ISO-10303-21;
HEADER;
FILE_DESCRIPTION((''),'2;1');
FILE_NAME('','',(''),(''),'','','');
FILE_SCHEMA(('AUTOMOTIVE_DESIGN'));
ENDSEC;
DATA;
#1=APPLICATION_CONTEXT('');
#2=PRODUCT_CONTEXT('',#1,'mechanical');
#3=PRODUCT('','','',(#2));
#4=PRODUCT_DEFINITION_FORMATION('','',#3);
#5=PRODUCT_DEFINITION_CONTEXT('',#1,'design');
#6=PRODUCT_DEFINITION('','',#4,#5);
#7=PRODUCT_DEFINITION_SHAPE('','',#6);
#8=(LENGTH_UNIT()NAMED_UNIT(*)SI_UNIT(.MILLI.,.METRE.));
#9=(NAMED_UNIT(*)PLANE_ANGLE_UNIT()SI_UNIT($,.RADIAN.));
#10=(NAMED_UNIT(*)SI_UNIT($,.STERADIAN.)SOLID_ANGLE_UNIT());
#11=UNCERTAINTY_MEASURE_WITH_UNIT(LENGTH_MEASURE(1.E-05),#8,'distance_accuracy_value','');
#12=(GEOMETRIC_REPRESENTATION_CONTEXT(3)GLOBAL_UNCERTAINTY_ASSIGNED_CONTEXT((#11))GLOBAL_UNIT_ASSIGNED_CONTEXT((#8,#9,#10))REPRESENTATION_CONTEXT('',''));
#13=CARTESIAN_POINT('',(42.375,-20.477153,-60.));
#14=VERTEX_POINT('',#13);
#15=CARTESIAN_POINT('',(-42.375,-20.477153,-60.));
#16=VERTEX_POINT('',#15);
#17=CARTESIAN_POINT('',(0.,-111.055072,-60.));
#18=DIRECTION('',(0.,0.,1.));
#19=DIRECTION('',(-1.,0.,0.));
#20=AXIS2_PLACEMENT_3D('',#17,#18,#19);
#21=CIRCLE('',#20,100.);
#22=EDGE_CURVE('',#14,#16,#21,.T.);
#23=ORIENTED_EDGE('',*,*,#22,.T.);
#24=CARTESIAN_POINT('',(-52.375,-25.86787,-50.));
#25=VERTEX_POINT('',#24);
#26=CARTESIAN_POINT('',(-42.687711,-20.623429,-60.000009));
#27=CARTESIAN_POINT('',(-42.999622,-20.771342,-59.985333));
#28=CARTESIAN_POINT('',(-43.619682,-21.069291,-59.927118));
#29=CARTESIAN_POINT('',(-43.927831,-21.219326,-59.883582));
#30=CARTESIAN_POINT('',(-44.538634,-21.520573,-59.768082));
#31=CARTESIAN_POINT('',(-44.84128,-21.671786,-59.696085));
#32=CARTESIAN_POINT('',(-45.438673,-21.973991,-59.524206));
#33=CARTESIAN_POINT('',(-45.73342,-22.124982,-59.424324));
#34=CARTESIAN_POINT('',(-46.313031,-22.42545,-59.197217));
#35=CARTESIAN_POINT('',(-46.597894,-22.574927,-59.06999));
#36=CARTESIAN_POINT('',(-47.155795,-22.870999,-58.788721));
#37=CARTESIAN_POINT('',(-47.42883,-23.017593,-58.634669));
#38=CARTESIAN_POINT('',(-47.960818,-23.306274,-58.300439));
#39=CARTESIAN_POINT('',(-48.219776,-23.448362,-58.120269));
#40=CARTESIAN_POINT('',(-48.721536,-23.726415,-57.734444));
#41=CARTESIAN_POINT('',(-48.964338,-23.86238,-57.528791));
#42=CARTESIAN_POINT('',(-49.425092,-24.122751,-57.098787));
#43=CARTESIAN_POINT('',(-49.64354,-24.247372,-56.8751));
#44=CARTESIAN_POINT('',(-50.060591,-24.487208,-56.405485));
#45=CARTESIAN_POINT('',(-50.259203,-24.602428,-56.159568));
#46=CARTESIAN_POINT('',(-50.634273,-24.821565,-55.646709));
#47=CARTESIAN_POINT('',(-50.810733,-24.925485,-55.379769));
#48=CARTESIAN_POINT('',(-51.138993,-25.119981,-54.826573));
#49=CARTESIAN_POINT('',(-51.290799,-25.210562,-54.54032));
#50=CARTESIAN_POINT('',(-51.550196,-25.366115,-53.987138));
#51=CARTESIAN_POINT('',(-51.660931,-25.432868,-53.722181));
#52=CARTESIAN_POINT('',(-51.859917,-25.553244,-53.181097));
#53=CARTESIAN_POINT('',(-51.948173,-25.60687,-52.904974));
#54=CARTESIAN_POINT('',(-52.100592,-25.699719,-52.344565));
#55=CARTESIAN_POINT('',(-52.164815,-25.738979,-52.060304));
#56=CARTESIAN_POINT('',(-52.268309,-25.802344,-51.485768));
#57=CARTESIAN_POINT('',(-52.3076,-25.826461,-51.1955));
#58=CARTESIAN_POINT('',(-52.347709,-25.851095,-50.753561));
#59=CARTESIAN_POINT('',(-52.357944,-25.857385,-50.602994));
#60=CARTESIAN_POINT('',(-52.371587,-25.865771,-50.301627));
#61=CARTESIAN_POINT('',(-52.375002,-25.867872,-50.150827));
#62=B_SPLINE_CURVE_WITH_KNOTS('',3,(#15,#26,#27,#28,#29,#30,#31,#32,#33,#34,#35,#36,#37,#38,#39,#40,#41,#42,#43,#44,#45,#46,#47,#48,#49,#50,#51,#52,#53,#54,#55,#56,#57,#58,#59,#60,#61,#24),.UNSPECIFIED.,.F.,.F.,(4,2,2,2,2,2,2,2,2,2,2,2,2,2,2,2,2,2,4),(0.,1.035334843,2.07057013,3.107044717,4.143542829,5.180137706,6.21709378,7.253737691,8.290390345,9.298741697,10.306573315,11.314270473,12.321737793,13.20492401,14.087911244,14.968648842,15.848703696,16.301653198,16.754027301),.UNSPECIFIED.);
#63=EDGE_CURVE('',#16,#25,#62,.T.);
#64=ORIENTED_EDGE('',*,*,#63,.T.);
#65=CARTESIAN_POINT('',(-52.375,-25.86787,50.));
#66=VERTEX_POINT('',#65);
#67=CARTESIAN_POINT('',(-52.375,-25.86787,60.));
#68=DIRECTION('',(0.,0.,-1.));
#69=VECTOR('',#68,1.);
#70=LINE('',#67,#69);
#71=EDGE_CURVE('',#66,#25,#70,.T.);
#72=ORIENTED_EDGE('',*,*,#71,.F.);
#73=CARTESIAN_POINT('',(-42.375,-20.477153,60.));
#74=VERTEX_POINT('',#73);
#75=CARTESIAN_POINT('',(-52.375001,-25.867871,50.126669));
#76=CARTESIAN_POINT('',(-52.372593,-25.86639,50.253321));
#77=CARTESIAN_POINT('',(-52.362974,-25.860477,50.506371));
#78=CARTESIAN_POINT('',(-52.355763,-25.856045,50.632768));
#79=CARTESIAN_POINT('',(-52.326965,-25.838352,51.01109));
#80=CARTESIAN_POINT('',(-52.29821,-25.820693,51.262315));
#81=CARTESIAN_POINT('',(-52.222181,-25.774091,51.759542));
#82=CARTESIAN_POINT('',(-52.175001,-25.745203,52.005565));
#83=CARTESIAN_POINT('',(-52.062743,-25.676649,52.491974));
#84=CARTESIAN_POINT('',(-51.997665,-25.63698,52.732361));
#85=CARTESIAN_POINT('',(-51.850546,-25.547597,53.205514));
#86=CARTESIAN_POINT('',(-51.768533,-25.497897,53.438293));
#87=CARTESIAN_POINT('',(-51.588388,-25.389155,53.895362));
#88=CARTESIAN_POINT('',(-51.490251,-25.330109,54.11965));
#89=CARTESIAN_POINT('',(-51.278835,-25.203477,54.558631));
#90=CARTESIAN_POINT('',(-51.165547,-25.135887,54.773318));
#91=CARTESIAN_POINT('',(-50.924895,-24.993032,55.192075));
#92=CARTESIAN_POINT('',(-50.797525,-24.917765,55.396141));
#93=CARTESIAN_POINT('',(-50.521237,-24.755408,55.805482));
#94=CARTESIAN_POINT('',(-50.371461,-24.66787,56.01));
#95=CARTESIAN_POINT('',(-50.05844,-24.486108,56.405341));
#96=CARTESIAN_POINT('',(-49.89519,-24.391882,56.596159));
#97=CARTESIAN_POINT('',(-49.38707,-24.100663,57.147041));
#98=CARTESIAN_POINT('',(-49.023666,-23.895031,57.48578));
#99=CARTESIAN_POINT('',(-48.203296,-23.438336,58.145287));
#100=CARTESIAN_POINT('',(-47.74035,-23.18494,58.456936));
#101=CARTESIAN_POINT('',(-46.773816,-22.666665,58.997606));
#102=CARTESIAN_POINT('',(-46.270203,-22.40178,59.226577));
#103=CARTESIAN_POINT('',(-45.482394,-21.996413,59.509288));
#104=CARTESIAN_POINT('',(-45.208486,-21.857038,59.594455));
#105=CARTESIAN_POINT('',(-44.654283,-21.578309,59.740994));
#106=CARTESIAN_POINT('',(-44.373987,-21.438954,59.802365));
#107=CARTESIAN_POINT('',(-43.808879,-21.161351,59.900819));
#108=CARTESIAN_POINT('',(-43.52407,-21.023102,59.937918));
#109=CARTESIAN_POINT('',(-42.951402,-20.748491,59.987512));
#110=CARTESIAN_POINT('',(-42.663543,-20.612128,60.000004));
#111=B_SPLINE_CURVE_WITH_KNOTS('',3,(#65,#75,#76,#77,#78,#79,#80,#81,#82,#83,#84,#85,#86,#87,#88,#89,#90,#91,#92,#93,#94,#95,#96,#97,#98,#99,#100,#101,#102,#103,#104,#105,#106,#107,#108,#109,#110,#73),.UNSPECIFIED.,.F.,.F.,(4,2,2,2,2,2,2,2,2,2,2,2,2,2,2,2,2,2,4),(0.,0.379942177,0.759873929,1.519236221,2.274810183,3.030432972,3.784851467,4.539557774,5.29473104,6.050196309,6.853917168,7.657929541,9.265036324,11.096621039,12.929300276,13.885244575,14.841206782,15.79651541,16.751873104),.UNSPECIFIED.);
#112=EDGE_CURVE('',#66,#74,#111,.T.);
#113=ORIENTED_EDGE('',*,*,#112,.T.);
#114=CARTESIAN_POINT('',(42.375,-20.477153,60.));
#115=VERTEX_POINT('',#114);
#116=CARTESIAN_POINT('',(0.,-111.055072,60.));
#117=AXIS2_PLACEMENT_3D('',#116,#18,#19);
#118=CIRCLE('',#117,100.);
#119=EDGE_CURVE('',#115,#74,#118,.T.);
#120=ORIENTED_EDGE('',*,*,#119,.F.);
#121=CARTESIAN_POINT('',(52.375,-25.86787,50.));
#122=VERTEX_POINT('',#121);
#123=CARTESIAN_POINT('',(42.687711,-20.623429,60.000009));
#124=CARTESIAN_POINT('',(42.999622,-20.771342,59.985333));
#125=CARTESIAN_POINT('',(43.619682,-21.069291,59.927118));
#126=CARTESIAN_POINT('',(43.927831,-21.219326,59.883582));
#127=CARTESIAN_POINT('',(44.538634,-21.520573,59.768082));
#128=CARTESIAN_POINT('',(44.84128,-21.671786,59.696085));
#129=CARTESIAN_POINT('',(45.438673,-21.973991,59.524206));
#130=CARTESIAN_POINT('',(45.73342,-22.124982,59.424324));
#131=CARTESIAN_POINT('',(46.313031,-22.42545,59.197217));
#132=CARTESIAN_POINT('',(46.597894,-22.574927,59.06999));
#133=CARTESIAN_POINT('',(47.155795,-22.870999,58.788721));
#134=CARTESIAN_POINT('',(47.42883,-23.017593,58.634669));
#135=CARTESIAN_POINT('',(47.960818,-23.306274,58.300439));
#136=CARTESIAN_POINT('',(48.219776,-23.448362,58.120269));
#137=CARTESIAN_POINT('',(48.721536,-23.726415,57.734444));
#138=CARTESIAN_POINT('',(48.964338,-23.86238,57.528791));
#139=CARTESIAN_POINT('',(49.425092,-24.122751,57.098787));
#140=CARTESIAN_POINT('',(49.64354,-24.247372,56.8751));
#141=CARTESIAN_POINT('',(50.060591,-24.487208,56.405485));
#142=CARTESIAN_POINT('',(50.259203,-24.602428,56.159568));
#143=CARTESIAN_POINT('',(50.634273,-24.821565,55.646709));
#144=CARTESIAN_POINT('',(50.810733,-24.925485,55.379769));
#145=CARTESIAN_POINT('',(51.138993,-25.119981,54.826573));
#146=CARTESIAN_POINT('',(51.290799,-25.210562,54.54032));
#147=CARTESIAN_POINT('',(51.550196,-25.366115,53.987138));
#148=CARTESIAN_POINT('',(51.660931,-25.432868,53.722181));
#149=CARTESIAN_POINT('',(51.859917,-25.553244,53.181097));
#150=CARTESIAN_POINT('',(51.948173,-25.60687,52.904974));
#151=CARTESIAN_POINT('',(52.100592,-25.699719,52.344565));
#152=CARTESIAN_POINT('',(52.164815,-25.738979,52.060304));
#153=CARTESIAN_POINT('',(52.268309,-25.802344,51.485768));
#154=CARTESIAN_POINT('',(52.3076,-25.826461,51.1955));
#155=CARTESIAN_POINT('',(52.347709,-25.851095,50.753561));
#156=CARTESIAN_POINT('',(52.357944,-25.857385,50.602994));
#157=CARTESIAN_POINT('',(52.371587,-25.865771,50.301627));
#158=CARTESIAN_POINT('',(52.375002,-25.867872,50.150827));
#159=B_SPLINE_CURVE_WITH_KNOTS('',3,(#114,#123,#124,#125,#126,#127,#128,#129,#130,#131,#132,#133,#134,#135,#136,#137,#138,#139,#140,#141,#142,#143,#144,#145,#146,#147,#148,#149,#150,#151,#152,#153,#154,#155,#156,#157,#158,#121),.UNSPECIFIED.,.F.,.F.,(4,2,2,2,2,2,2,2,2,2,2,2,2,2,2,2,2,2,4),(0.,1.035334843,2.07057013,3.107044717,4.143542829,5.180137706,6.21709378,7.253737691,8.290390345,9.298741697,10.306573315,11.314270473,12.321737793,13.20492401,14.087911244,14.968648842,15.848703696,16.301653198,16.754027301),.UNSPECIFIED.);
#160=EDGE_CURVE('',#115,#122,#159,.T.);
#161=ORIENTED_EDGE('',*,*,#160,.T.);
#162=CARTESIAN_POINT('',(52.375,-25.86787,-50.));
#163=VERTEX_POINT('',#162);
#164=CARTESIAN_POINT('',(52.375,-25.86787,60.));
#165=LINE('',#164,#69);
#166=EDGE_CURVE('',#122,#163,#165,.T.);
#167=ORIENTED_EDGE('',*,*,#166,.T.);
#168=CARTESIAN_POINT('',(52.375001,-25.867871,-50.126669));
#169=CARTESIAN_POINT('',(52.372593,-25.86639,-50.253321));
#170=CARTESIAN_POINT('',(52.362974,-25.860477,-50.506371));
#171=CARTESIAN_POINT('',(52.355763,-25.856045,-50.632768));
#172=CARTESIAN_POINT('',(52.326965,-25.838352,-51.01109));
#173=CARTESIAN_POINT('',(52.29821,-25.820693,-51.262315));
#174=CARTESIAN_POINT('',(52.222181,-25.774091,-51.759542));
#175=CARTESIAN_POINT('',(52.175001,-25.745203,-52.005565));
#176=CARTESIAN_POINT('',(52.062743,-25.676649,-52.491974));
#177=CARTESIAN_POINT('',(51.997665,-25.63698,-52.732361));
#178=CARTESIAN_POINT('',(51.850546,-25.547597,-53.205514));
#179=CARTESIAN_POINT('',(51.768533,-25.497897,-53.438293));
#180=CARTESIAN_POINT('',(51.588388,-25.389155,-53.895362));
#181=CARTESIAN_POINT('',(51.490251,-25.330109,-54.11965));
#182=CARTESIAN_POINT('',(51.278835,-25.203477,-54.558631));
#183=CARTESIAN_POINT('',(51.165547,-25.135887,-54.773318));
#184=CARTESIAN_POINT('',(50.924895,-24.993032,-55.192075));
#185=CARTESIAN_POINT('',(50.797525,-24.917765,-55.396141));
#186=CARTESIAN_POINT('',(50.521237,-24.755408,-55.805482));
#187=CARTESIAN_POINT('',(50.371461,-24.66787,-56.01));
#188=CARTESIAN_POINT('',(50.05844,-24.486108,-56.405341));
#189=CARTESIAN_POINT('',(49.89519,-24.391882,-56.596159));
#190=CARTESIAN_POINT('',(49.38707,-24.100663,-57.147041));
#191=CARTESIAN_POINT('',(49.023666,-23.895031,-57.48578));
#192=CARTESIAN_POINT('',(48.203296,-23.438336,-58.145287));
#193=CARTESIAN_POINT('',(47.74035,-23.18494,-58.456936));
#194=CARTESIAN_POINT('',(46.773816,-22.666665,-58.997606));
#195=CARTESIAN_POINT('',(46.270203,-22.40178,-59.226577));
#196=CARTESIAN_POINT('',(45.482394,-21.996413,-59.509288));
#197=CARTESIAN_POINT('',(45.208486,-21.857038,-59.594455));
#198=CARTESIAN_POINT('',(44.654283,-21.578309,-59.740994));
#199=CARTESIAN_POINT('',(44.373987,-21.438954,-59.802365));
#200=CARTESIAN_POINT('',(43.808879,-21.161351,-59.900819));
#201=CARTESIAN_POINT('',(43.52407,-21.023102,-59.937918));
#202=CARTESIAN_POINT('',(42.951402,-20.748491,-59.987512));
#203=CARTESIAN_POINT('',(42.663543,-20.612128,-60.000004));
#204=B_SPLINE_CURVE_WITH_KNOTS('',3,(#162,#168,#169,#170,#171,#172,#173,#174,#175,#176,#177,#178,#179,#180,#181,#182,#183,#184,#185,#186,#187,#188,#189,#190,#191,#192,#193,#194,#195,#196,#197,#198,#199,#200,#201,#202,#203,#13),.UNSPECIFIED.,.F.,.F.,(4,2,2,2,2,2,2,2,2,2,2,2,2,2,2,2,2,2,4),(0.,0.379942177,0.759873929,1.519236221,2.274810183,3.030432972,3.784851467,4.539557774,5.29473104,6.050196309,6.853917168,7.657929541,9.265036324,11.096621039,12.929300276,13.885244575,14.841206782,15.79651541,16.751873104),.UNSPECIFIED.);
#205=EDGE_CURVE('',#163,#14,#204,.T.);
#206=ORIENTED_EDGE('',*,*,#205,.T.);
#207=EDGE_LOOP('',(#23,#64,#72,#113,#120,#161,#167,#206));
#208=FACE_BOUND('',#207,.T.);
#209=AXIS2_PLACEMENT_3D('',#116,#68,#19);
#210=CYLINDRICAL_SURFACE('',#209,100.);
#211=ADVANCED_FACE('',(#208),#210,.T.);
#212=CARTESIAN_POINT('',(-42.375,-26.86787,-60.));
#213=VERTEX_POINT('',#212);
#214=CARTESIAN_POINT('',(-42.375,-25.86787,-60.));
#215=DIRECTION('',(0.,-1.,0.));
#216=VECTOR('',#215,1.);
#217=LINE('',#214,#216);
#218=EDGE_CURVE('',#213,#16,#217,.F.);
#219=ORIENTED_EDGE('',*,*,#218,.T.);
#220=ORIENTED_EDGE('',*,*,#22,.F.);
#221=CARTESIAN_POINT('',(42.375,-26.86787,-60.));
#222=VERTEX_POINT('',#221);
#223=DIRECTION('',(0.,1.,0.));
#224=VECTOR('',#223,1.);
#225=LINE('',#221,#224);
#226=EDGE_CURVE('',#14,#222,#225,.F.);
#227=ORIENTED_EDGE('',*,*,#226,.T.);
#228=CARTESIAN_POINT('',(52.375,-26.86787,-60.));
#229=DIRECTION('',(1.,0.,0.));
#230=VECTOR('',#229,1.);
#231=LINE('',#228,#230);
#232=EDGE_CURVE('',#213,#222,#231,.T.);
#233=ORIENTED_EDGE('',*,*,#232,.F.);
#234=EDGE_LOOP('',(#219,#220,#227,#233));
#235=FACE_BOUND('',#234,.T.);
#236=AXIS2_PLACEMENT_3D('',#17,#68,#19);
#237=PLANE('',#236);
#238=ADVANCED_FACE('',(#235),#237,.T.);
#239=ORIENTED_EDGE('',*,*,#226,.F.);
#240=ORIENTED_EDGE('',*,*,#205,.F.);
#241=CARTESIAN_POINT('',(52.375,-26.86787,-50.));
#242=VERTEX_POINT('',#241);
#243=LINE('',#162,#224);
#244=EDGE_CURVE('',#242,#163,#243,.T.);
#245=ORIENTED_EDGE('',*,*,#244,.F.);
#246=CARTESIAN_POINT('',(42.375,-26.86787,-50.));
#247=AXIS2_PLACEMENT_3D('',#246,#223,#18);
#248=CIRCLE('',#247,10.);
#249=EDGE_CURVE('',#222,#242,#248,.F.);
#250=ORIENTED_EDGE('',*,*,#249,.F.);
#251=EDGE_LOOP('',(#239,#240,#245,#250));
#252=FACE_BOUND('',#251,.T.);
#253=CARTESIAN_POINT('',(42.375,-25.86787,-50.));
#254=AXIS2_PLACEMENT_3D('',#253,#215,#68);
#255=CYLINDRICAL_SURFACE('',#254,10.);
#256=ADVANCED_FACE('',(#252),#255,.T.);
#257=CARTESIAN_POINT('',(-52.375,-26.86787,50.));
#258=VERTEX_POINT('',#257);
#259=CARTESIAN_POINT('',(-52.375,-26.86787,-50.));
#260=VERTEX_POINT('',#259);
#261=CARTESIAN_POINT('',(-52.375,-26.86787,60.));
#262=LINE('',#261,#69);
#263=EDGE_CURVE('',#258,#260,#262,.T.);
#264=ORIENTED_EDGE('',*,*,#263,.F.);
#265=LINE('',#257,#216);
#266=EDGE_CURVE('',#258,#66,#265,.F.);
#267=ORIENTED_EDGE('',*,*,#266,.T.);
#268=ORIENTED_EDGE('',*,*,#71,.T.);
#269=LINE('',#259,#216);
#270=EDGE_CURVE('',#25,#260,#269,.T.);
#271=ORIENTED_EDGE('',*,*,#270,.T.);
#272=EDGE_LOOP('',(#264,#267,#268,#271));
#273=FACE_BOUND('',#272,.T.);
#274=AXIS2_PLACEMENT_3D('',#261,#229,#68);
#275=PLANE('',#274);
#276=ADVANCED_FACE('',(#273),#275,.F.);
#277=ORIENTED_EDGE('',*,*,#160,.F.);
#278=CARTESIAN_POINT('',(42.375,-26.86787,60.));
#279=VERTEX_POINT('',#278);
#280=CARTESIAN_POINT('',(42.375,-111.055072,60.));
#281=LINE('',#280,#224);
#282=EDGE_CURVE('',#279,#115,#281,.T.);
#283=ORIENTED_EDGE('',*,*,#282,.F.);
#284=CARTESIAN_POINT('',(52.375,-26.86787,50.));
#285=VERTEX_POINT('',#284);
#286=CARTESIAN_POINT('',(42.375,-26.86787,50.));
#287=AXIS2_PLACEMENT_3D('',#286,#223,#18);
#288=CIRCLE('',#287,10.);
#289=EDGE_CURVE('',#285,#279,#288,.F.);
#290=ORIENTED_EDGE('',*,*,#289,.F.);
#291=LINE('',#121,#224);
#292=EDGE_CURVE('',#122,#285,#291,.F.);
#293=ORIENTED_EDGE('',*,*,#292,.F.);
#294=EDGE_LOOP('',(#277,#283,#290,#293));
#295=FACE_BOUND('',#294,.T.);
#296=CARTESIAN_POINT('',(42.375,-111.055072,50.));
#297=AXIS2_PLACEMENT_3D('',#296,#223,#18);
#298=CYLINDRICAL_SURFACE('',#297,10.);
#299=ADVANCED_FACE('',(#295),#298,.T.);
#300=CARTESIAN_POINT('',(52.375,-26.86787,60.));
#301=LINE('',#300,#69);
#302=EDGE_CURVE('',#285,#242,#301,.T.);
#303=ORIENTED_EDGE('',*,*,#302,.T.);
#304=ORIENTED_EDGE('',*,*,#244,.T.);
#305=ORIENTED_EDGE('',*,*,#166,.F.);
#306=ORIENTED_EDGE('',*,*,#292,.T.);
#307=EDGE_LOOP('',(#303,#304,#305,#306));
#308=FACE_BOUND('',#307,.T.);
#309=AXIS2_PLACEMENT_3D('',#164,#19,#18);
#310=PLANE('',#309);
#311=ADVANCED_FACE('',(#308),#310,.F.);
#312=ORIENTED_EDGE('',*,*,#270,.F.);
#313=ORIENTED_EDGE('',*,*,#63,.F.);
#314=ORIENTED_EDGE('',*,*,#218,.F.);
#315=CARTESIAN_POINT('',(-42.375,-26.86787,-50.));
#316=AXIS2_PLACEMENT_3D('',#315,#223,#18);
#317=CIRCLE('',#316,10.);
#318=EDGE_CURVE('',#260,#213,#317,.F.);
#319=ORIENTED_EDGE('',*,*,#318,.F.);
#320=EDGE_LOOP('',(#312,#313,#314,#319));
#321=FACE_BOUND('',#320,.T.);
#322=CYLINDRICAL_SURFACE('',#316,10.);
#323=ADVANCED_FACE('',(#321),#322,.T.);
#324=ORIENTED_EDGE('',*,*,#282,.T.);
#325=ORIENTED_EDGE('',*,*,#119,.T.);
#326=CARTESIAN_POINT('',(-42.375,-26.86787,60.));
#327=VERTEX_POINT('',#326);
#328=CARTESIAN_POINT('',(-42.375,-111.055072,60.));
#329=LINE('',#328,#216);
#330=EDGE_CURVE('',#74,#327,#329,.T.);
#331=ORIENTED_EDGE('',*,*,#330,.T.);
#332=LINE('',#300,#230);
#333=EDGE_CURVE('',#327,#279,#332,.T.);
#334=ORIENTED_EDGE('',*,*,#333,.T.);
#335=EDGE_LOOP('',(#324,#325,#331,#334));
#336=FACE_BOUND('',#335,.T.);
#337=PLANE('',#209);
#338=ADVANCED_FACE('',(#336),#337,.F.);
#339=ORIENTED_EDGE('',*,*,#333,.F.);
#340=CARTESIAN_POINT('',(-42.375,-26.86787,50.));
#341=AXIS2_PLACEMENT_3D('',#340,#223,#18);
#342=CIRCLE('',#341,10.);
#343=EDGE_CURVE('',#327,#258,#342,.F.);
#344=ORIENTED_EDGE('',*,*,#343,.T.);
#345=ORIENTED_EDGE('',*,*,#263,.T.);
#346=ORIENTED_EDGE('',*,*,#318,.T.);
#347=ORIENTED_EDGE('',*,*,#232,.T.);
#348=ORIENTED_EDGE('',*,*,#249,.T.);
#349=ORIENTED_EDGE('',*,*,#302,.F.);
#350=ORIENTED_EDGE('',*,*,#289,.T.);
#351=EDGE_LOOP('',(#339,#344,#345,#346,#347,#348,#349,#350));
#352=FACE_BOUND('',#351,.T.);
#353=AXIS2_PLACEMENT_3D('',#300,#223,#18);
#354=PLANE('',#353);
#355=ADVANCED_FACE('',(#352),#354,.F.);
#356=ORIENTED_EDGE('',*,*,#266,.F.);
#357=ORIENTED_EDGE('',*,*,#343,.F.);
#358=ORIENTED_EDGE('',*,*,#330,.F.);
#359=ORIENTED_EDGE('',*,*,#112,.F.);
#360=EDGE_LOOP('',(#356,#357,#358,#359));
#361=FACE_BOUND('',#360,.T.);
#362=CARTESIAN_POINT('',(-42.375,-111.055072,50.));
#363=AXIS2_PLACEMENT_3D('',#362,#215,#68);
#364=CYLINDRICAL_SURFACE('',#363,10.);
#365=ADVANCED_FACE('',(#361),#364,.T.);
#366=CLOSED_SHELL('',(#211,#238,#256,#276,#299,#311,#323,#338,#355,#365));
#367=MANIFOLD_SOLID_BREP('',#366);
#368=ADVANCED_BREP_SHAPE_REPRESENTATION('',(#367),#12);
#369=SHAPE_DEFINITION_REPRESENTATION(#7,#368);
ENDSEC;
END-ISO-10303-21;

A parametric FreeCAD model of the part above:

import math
import FreeCAD as App
import Part
import Sketcher
from FreeCAD import Vector


def edges_at(feature, points):
    """Names of the edges that pass closest to the given points."""
    edges = feature.Shape.Edges
    near = lambda p: min(range(len(edges)), key=lambda i: edges[i].distToShape(Part.Vertex(*p))[0])
    return sorted({f"Edge{near(p) + 1}" for p in points})

doc = App.newDocument("Part")
body = doc.addObject("PartDesign::Body", "Body")

# Sketch on XY plane
sketch1 = body.newObject("Sketcher::SketchObject", "Sketch")
sketch1.AttachmentSupport = (doc.getObject("XY_Plane"), [""])
sketch1.MapMode = "FlatFace"
sketch1.addGeometry(Part.LineSegment(Vector(52.4, -26.9, 0), Vector(52.4, -25.9, 0)), False)
sketch1.addGeometry(Part.ArcOfCircle(Part.Circle(Vector(0, -111.1, 0), Vector(0, 0, 1), 100), math.radians(58), math.radians(122)), False)
sketch1.addGeometry(Part.LineSegment(Vector(-52.4, -25.9, 0), Vector(-52.4, -26.9, 0)), False)
sketch1.addGeometry(Part.LineSegment(Vector(-52.4, -26.9, 0), Vector(52.4, -26.9, 0)), False)
sketch1.addConstraint(Sketcher.Constraint("Coincident", 0, 2, 1, 1))
sketch1.addConstraint(Sketcher.Constraint("Coincident", 1, 2, 2, 1))
sketch1.addConstraint(Sketcher.Constraint("Coincident", 2, 2, 3, 1))
sketch1.addConstraint(Sketcher.Constraint("Coincident", 3, 2, 0, 1))
sketch1.addConstraint(Sketcher.Constraint("Vertical", 0))
sketch1.addConstraint(Sketcher.Constraint("Vertical", 2))
sketch1.addConstraint(Sketcher.Constraint("Horizontal", 3))
sketch1.addConstraint(Sketcher.Constraint("Symmetric", 0, 2, 1, 2, -2))
sketch1.addConstraint(Sketcher.Constraint("Radius", 1, 100.0))
sketch1.addConstraint(Sketcher.Constraint("DistanceY", 0, 1, 0, 2, 1.0))
sketch1.addConstraint(Sketcher.Constraint("DistanceX", 3, 1, 3, 2, 104.75))
sketch1.addConstraint(Sketcher.Constraint("DistanceY", 1, 3, -1, 1, 111.055072))
pad1 = body.newObject("PartDesign::Pad", "Pad")
pad1.Profile = sketch1
pad1.Length = 120
pad1.Midplane = True
doc.recompute()

fillet = body.newObject("PartDesign::Fillet", "Fillet")
fillet.Base = (pad1, edges_at(pad1, [
    (52.375, -26.368, 60),
    (52.375, -26.368, -60),
    (-52.375, -26.368, -60),
    (-52.375, -26.368, 60),
]))
fillet.Radius = 10

doc.recompute()
